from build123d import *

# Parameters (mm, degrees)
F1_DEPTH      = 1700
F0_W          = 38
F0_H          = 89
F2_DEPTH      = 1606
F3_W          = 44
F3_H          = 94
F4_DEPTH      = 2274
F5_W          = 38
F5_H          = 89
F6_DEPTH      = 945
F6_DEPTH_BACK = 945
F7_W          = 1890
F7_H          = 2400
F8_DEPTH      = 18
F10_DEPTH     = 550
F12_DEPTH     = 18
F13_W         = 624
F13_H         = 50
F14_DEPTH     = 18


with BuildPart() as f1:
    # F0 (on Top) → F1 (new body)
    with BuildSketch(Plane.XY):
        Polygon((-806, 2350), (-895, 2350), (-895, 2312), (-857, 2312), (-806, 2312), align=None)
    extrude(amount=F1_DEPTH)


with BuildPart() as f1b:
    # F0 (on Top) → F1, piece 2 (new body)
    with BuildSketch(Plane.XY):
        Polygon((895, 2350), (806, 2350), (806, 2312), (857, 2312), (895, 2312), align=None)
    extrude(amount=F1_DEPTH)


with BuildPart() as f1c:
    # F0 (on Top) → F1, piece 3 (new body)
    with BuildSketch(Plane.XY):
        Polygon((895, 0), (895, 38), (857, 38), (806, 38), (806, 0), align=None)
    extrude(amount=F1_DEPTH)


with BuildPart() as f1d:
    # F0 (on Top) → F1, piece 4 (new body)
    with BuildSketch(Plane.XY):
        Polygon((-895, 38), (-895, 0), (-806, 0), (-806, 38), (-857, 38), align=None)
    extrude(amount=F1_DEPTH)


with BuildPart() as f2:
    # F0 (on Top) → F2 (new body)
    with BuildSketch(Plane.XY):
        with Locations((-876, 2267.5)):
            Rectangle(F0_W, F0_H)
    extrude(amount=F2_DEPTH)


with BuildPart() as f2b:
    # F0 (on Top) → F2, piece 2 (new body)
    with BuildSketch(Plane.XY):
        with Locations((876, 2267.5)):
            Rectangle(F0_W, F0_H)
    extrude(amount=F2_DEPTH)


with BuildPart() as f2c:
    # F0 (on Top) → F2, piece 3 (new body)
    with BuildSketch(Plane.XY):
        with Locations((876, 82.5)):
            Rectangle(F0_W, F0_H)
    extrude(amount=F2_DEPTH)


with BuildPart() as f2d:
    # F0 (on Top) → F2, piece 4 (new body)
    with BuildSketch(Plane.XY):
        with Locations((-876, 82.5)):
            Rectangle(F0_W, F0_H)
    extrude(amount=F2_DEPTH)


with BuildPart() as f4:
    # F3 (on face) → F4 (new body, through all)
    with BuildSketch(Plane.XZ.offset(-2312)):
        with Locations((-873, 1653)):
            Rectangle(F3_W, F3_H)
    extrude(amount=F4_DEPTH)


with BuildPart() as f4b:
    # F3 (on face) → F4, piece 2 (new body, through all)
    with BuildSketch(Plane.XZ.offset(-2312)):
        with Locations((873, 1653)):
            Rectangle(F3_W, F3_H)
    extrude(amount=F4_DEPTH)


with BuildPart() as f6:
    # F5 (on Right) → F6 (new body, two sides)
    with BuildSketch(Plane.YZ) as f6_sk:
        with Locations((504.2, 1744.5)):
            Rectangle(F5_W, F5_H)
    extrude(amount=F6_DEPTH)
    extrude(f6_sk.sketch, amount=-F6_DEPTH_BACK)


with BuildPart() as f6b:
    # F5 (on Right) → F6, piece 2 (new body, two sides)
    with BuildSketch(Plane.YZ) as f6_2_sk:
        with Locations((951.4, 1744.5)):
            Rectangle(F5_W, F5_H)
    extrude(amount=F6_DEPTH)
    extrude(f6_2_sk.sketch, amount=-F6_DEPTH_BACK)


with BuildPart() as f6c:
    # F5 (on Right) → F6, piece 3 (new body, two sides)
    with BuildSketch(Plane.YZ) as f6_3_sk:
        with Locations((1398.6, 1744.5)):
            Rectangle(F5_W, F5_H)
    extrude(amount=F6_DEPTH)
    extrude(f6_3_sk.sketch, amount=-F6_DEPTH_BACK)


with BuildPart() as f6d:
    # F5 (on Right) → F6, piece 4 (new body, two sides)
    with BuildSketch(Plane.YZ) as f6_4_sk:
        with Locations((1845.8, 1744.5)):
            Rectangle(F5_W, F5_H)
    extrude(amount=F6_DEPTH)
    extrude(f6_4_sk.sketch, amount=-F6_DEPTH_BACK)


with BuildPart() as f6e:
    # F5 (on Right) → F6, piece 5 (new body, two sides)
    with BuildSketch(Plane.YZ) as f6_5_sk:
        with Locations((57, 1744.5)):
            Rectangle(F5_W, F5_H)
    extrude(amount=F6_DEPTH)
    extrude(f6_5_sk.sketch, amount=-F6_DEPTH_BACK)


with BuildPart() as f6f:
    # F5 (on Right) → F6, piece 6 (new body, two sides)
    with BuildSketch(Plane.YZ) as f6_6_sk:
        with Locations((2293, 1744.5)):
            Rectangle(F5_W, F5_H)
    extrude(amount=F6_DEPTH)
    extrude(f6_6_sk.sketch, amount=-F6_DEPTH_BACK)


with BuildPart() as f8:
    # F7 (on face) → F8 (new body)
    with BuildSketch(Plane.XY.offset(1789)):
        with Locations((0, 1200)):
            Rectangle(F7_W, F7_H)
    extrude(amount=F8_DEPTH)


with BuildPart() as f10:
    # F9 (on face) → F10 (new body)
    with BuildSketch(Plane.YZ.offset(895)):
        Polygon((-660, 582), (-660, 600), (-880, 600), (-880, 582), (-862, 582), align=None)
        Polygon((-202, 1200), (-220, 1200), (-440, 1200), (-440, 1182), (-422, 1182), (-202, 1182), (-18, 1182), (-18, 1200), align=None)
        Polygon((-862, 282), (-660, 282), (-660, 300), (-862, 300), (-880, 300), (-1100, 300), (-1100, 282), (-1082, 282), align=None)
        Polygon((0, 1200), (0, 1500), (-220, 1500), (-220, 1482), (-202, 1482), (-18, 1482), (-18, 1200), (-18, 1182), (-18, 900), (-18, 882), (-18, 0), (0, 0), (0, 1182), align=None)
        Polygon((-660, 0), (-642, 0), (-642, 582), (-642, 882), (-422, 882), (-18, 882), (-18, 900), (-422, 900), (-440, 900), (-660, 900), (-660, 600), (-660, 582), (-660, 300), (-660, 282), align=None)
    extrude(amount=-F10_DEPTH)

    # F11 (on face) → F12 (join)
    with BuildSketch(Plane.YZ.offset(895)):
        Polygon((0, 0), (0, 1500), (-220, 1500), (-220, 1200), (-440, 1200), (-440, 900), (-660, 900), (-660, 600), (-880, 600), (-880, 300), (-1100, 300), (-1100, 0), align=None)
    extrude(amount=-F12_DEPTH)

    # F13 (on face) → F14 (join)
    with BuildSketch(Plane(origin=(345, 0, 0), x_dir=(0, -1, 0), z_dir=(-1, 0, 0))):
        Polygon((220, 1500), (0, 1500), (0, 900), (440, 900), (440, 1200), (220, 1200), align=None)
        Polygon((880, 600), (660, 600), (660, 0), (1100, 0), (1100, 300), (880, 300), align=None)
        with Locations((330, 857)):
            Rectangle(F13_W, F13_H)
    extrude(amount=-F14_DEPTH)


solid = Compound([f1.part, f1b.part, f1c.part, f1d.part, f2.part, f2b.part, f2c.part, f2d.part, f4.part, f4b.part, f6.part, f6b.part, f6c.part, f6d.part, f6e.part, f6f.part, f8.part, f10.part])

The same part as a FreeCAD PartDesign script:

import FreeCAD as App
import Part
import Sketcher

V = App.Vector


def add_polygon(sketch, points):
    """Adds a closed chain of lines whose ends are joined by coincident constraints."""
    first, n = sketch.GeometryCount, len(points)
    for a, b in zip(points, points[1:] + points[:1]):
        sketch.addGeometry(Part.LineSegment(App.Vector(*a, 0), App.Vector(*b, 0)), False)
    for i in range(n):
        sketch.addConstraint(Sketcher.Constraint("Coincident", first + i, 2, first + (i + 1) % n, 1))

doc = App.newDocument("Part")
params = doc.addObject("Spreadsheet::Sheet", "Params")
for row, (alias, value) in enumerate([
    ("sketch1_width", "89 mm"),
    ("sketch1_height", "38 mm"),
    ("pad1_length", "1700 mm"),
    ("sketch2_width", "89 mm"),
    ("sketch2_height", "38 mm"),
    ("pad2_length", "1700 mm"),
    ("sketch3_width", "89 mm"),
    ("sketch3_height", "38 mm"),
    ("pad3_length", "1700 mm"),
    ("sketch4_width", "89 mm"),
    ("sketch4_height", "38 mm"),
    ("pad4_length", "1700 mm"),
    ("sketch5_width", "38 mm"),
    ("sketch5_height", "89 mm"),
    ("pad5_length", "1606 mm"),
    ("sketch6_width", "38 mm"),
    ("sketch6_height", "89 mm"),
    ("pad6_length", "1606 mm"),
    ("sketch7_width", "38 mm"),
    ("sketch7_height", "89 mm"),
    ("pad7_length", "1606 mm"),
    ("sketch8_width", "38 mm"),
    ("sketch8_height", "89 mm"),
    ("pad8_length", "1606 mm"),
    ("sketch9_width", "44 mm"),
    ("sketch9_height", "94 mm"),
    ("pad9_length", "2274 mm"),
    ("sketch10_width", "44 mm"),
    ("sketch10_height", "94 mm"),
    ("pad10_length", "2274 mm"),
    ("sketch11_width", "38 mm"),
    ("sketch11_height", "89 mm"),
    ("pad11_length", "945 mm"),
    ("pad11_length2", "945 mm"),
    ("sketch12_width", "38 mm"),
    ("sketch12_height", "89 mm"),
    ("pad12_length", "945 mm"),
    ("pad12_length2", "945 mm"),
    ("sketch13_width", "38 mm"),
    ("sketch13_height", "89 mm"),
    ("pad13_length", "945 mm"),
    ("pad13_length2", "945 mm"),
    ("sketch14_width", "38 mm"),
    ("sketch14_height", "89 mm"),
    ("pad14_length", "945 mm"),
    ("pad14_length2", "945 mm"),
    ("sketch15_width", "38 mm"),
    ("sketch15_height", "89 mm"),
    ("pad15_length", "945 mm"),
    ("pad15_length2", "945 mm"),
    ("sketch16_width", "38 mm"),
    ("sketch16_height", "89 mm"),
    ("pad16_length", "945 mm"),
    ("pad16_length2", "945 mm"),
    ("sketch17_width", "1890 mm"),
    ("sketch17_height", "2400 mm"),
    ("pad17_length", "18 mm"),
    ("sketch18_width", "220 mm"),
    ("sketch18_width2", "440 mm"),
    ("sketch18_width3", "18 mm"),
    ("sketch18_width4", "624 mm"),
    ("sketch18_width5", "422 mm"),
    ("pad18_length", "550 mm"),
    ("sketch19_width", "220 mm"),
    ("sketch19_height", "1500 mm"),
    ("pad19_length", "18 mm"),
    ("sketch20_width", "220 mm"),
    ("sketch20_width2", "624 mm"),
    ("sketch20_height", "600 mm"),
    ("sketch20_height2", "50 mm"),
    ("pad20_length", "18 mm"),
], start=1):
    params.set(f"A{row}", alias)
    params.set(f"B{row}", "=" + value)
    params.setAlias(f"B{row}", alias)

body = doc.addObject("PartDesign::Body", "Body")

sketch1 = body.newObject("Sketcher::SketchObject", "Sketch")
sketch1.AttachmentSupport = (doc.getObject("XY_Plane"), [""])
sketch1.MapMode = "FlatFace"
add_polygon(sketch1, [(-806, 2350), (-895, 2350), (-895, 2312), (-806, 2312)])
sketch1.addConstraint(Sketcher.Constraint("Horizontal", 0))
sketch1.addConstraint(Sketcher.Constraint("Vertical", 1))
sketch1.addConstraint(Sketcher.Constraint("Horizontal", 2))
sketch1.addConstraint(Sketcher.Constraint("Vertical", 3))
sketch1.addConstraint(Sketcher.Constraint("DistanceX", 0, 2, 0, 1, 89.0))
sketch1.addConstraint(Sketcher.Constraint("DistanceY", 1, 2, 1, 1, 38.0))
sketch1.addConstraint(Sketcher.Constraint("DistanceX", 0, 2, -1, 1, 895.0))
sketch1.addConstraint(Sketcher.Constraint("DistanceY", -1, 1, 0, 2, 2350.0))
sketch1.setExpression("Constraints[8]", "Params.sketch1_width")
sketch1.setExpression("Constraints[9]", "Params.sketch1_height")
pad1 = body.newObject("PartDesign::Pad", "Pad")
pad1.Profile = sketch1
pad1.setExpression("Length", "Params.pad1_length")
body2 = doc.addObject("PartDesign::Body", "Body001")

sketch2 = body2.newObject("Sketcher::SketchObject", "Sketch001")
sketch2.AttachmentSupport = (doc.getObject("XY_Plane001"), [""])
sketch2.MapMode = "FlatFace"
add_polygon(sketch2, [(895, 2350), (806, 2350), (806, 2312), (895, 2312)])
sketch2.addConstraint(Sketcher.Constraint("Horizontal", 0))
sketch2.addConstraint(Sketcher.Constraint("Vertical", 1))
sketch2.addConstraint(Sketcher.Constraint("Horizontal", 2))
sketch2.addConstraint(Sketcher.Constraint("Vertical", 3))
sketch2.addConstraint(Sketcher.Constraint("DistanceX", 0, 2, 0, 1, 89.0))
sketch2.addConstraint(Sketcher.Constraint("DistanceY", 1, 2, 1, 1, 38.0))
sketch2.addConstraint(Sketcher.Constraint("DistanceX", -1, 1, 0, 2, 806.0))
sketch2.addConstraint(Sketcher.Constraint("DistanceY", -1, 1, 0, 2, 2350.0))
sketch2.setExpression("Constraints[8]", "Params.sketch2_width")
sketch2.setExpression("Constraints[9]", "Params.sketch2_height")
pad2 = body2.newObject("PartDesign::Pad", "Pad001")
pad2.Profile = sketch2
pad2.setExpression("Length", "Params.pad2_length")
body3 = doc.addObject("PartDesign::Body", "Body002")

sketch3 = body3.newObject("Sketcher::SketchObject", "Sketch002")
sketch3.AttachmentSupport = (doc.getObject("XY_Plane002"), [""])
sketch3.MapMode = "FlatFace"
add_polygon(sketch3, [(895, 0), (895, 38), (806, 38), (806, 0)])
sketch3.addConstraint(Sketcher.Constraint("Vertical", 0))
sketch3.addConstraint(Sketcher.Constraint("Horizontal", 1))
sketch3.addConstraint(Sketcher.Constraint("Vertical", 2))
sketch3.addConstraint(Sketcher.Constraint("Horizontal", 3))
sketch3.addConstraint(Sketcher.Constraint("PointOnObject", 2, 2, -1))
sketch3.addConstraint(Sketcher.Constraint("DistanceX", 1, 2, 1, 1, 89.0))
sketch3.addConstraint(Sketcher.Constraint("DistanceY", 0, 1, 0, 2, 38.0))
sketch3.addConstraint(Sketcher.Constraint("DistanceX", -1, 1, 0, 2, 895.0))
sketch3.setExpression("Constraints[9]", "Params.sketch3_width")
sketch3.setExpression("Constraints[10]", "Params.sketch3_height")
pad3 = body3.newObject("PartDesign::Pad", "Pad002")
pad3.Profile = sketch3
pad3.setExpression("Length", "Params.pad3_length")
body4 = doc.addObject("PartDesign::Body", "Body003")

sketch4 = body4.newObject("Sketcher::SketchObject", "Sketch003")
sketch4.AttachmentSupport = (doc.getObject("XY_Plane003"), [""])
sketch4.MapMode = "FlatFace"
add_polygon(sketch4, [(-895, 38), (-895, 0), (-806, 0), (-806, 38)])
sketch4.addConstraint(Sketcher.Constraint("Vertical", 0))
sketch4.addConstraint(Sketcher.Constraint("Horizontal", 1))
sketch4.addConstraint(Sketcher.Constraint("Vertical", 2))
sketch4.addConstraint(Sketcher.Constraint("Horizontal", 3))
sketch4.addConstraint(Sketcher.Constraint("PointOnObject", 0, 2, -1))
sketch4.addConstraint(Sketcher.Constraint("DistanceX", 1, 1, 1, 2, 89.0))
sketch4.addConstraint(Sketcher.Constraint("DistanceY", 0, 2, 0, 1, 38.0))
sketch4.addConstraint(Sketcher.Constraint("DistanceX", 0, 2, -1, 1, 895.0))
sketch4.setExpression("Constraints[9]", "Params.sketch4_width")
sketch4.setExpression("Constraints[10]", "Params.sketch4_height")
pad4 = body4.newObject("PartDesign::Pad", "Pad003")
pad4.Profile = sketch4
pad4.setExpression("Length", "Params.pad4_length")
body5 = doc.addObject("PartDesign::Body", "Body004")

sketch5 = body5.newObject("Sketcher::SketchObject", "Sketch004")
sketch5.AttachmentSupport = (doc.getObject("XY_Plane004"), [""])
sketch5.MapMode = "FlatFace"
add_polygon(sketch5, [(-895, 2312), (-895, 2223), (-857, 2223), (-857, 2312)])
sketch5.addConstraint(Sketcher.Constraint("Vertical", 0))
sketch5.addConstraint(Sketcher.Constraint("Horizontal", 1))
sketch5.addConstraint(Sketcher.Constraint("Vertical", 2))
sketch5.addConstraint(Sketcher.Constraint("Horizontal", 3))
sketch5.addConstraint(Sketcher.Constraint("DistanceX", 1, 1, 1, 2, 38.0))
sketch5.addConstraint(Sketcher.Constraint("DistanceY", 0, 2, 0, 1, 89.0))
sketch5.addConstraint(Sketcher.Constraint("DistanceX", 0, 2, -1, 1, 895.0))
sketch5.addConstraint(Sketcher.Constraint("DistanceY", -1, 1, 0, 2, 2223.0))
sketch5.setExpression("Constraints[8]", "Params.sketch5_width")
sketch5.setExpression("Constraints[9]", "Params.sketch5_height")
pad5 = body5.newObject("PartDesign::Pad", "Pad004")
pad5.Profile = sketch5
pad5.setExpression("Length", "Params.pad5_length")
body6 = doc.addObject("PartDesign::Body", "Body005")

sketch6 = body6.newObject("Sketcher::SketchObject", "Sketch005")
sketch6.AttachmentSupport = (doc.getObject("XY_Plane005"), [""])
sketch6.MapMode = "FlatFace"
add_polygon(sketch6, [(857, 2312), (857, 2223), (895, 2223), (895, 2312)])
sketch6.addConstraint(Sketcher.Constraint("Vertical", 0))
sketch6.addConstraint(Sketcher.Constraint("Horizontal", 1))
sketch6.addConstraint(Sketcher.Constraint("Vertical", 2))
sketch6.addConstraint(Sketcher.Constraint("Horizontal", 3))
sketch6.addConstraint(Sketcher.Constraint("DistanceX", 1, 1, 1, 2, 38.0))
sketch6.addConstraint(Sketcher.Constraint("DistanceY", 0, 2, 0, 1, 89.0))
sketch6.addConstraint(Sketcher.Constraint("DistanceX", -1, 1, 0, 2, 857.0))
sketch6.addConstraint(Sketcher.Constraint("DistanceY", -1, 1, 0, 2, 2223.0))
sketch6.setExpression("Constraints[8]", "Params.sketch6_width")
sketch6.setExpression("Constraints[9]", "Params.sketch6_height")
pad6 = body6.newObject("PartDesign::Pad", "Pad005")
pad6.Profile = sketch6
pad6.setExpression("Length", "Params.pad6_length")
body7 = doc.addObject("PartDesign::Body", "Body006")

sketch7 = body7.newObject("Sketcher::SketchObject", "Sketch006")
sketch7.AttachmentSupport = (doc.getObject("XY_Plane006"), [""])
sketch7.MapMode = "FlatFace"
add_polygon(sketch7, [(857, 127), (857, 38), (895, 38), (895, 127)])
sketch7.addConstraint(Sketcher.Constraint("Vertical", 0))
sketch7.addConstraint(Sketcher.Constraint("Horizontal", 1))
sketch7.addConstraint(Sketcher.Constraint("Vertical", 2))
sketch7.addConstraint(Sketcher.Constraint("Horizontal", 3))
sketch7.addConstraint(Sketcher.Constraint("DistanceX", 1, 1, 1, 2, 38.0))
sketch7.addConstraint(Sketcher.Constraint("DistanceY", 0, 2, 0, 1, 89.0))
sketch7.addConstraint(Sketcher.Constraint("DistanceX", -1, 1, 0, 2, 857.0))
sketch7.addConstraint(Sketcher.Constraint("DistanceY", -1, 1, 0, 2, 38.0))
sketch7.setExpression("Constraints[8]", "Params.sketch7_width")
sketch7.setExpression("Constraints[9]", "Params.sketch7_height")
pad7 = body7.newObject("PartDesign::Pad", "Pad006")
pad7.Profile = sketch7
pad7.setExpression("Length", "Params.pad7_length")
body8 = doc.addObject("PartDesign::Body", "Body007")

sketch8 = body8.newObject("Sketcher::SketchObject", "Sketch007")
sketch8.AttachmentSupport = (doc.getObject("XY_Plane007"), [""])
sketch8.MapMode = "FlatFace"
add_polygon(sketch8, [(-895, 127), (-895, 38), (-857, 38), (-857, 127)])
sketch8.addConstraint(Sketcher.Constraint("Vertical", 0))
sketch8.addConstraint(Sketcher.Constraint("Horizontal", 1))
sketch8.addConstraint(Sketcher.Constraint("Vertical", 2))
sketch8.addConstraint(Sketcher.Constraint("Horizontal", 3))
sketch8.addConstraint(Sketcher.Constraint("DistanceX", 1, 1, 1, 2, 38.0))
sketch8.addConstraint(Sketcher.Constraint("DistanceY", 0, 2, 0, 1, 89.0))
sketch8.addConstraint(Sketcher.Constraint("DistanceX", 0, 2, -1, 1, 895.0))
sketch8.addConstraint(Sketcher.Constraint("DistanceY", -1, 1, 0, 2, 38.0))
sketch8.setExpression("Constraints[8]", "Params.sketch8_width")
sketch8.setExpression("Constraints[9]", "Params.sketch8_height")
pad8 = body8.newObject("PartDesign::Pad", "Pad007")
pad8.Profile = sketch8
pad8.setExpression("Length", "Params.pad8_length")
body9 = doc.addObject("PartDesign::Body", "Body008")

sketch9 = body9.newObject("Sketcher::SketchObject", "Sketch008")
sketch9.AttachmentSupport = (doc.getObject("XZ_Plane008"), [""])
sketch9.MapMode = "FlatFace"
sketch9.AttachmentOffset = App.Placement(V(0, 0, -2312), App.Rotation())
add_polygon(sketch9, [(-895, 1700), (-895, 1606), (-851, 1606), (-851, 1700)])
sketch9.addConstraint(Sketcher.Constraint("Vertical", 0))
sketch9.addConstraint(Sketcher.Constraint("Horizontal", 1))
sketch9.addConstraint(Sketcher.Constraint("Vertical", 2))
sketch9.addConstraint(Sketcher.Constraint("Horizontal", 3))
sketch9.addConstraint(Sketcher.Constraint("DistanceX", 1, 1, 1, 2, 44.0))
sketch9.addConstraint(Sketcher.Constraint("DistanceY", 0, 2, 0, 1, 94.0))
sketch9.addConstraint(Sketcher.Constraint("DistanceX", 0, 2, -1, 1, 895.0))
sketch9.addConstraint(Sketcher.Constraint("DistanceY", -1, 1, 0, 2, 1606.0))
sketch9.setExpression("Constraints[8]", "Params.sketch9_width")
sketch9.setExpression("Constraints[9]", "Params.sketch9_height")
pad9 = body9.newObject("PartDesign::Pad", "Pad008")
pad9.Profile = sketch9
pad9.setExpression("Length", "Params.pad9_length")
body10 = doc.addObject("PartDesign::Body", "Body009")

sketch10 = body10.newObject("Sketcher::SketchObject", "Sketch009")
sketch10.AttachmentSupport = (doc.getObject("XZ_Plane009"), [""])
sketch10.MapMode = "FlatFace"
sketch10.AttachmentOffset = App.Placement(V(0, 0, -2312), App.Rotation())
add_polygon(sketch10, [(851, 1700), (851, 1606), (895, 1606), (895, 1700)])
sketch10.addConstraint(Sketcher.Constraint("Vertical", 0))
sketch10.addConstraint(Sketcher.Constraint("Horizontal", 1))
sketch10.addConstraint(Sketcher.Constraint("Vertical", 2))
sketch10.addConstraint(Sketcher.Constraint("Horizontal", 3))
sketch10.addConstraint(Sketcher.Constraint("DistanceX", 1, 1, 1, 2, 44.0))
sketch10.addConstraint(Sketcher.Constraint("DistanceY", 0, 2, 0, 1, 94.0))
sketch10.addConstraint(Sketcher.Constraint("DistanceX", -1, 1, 0, 2, 851.0))
sketch10.addConstraint(Sketcher.Constraint("DistanceY", -1, 1, 0, 2, 1606.0))
sketch10.setExpression("Constraints[8]", "Params.sketch10_width")
sketch10.setExpression("Constraints[9]", "Params.sketch10_height")
pad10 = body10.newObject("PartDesign::Pad", "Pad009")
pad10.Profile = sketch10
pad10.setExpression("Length", "Params.pad10_length")
body11 = doc.addObject("PartDesign::Body", "Body010")

sketch11 = body11.newObject("Sketcher::SketchObject", "Sketch010")
sketch11.AttachmentSupport = (doc.getObject("YZ_Plane010"), [""])
sketch11.MapMode = "FlatFace"
add_polygon(sketch11, [(485.2, 1789), (485.2, 1700), (523.2, 1700), (523.2, 1789)])
sketch11.addConstraint(Sketcher.Constraint("Vertical", 0))
sketch11.addConstraint(Sketcher.Constraint("Horizontal", 1))
sketch11.addConstraint(Sketcher.Constraint("Vertical", 2))
sketch11.addConstraint(Sketcher.Constraint("Horizontal", 3))
sketch11.addConstraint(Sketcher.Constraint("DistanceX", 1, 1, 1, 2, 38.0))
sketch11.addConstraint(Sketcher.Constraint("DistanceY", 0, 2, 0, 1, 89.0))
sketch11.addConstraint(Sketcher.Constraint("DistanceY", -1, 1, 0, 2, 1700.0))
sketch11.addConstraint(Sketcher.Constraint("DistanceX", -1, 1, 0, 2, 485.2))
sketch11.setExpression("Constraints[8]", "Params.sketch11_width")
sketch11.setExpression("Constraints[9]", "Params.sketch11_height")
pad11 = body11.newObject("PartDesign::Pad", "Pad010")
pad11.Profile = sketch11
pad11.Type = "TwoLengths"
pad11.setExpression("Length", "Params.pad11_length")
pad11.setExpression("Length2", "Params.pad11_length2")
body12 = doc.addObject("PartDesign::Body", "Body011")

sketch12 = body12.newObject("Sketcher::SketchObject", "Sketch011")
sketch12.AttachmentSupport = (doc.getObject("YZ_Plane011"), [""])
sketch12.MapMode = "FlatFace"
add_polygon(sketch12, [(932.4, 1789), (932.4, 1700), (970.4, 1700), (970.4, 1789)])
sketch12.addConstraint(Sketcher.Constraint("Vertical", 0))
sketch12.addConstraint(Sketcher.Constraint("Horizontal", 1))
sketch12.addConstraint(Sketcher.Constraint("Vertical", 2))
sketch12.addConstraint(Sketcher.Constraint("Horizontal", 3))
sketch12.addConstraint(Sketcher.Constraint("DistanceX", 1, 1, 1, 2, 38.0))
sketch12.addConstraint(Sketcher.Constraint("DistanceY", 0, 2, 0, 1, 89.0))
sketch12.addConstraint(Sketcher.Constraint("DistanceY", -1, 1, 0, 2, 1700.0))
sketch12.addConstraint(Sketcher.Constraint("DistanceX", -1, 1, 0, 2, 932.4))
sketch12.setExpression("Constraints[8]", "Params.sketch12_width")
sketch12.setExpression("Constraints[9]", "Params.sketch12_height")
pad12 = body12.newObject("PartDesign::Pad", "Pad011")
pad12.Profile = sketch12
pad12.Type = "TwoLengths"
pad12.setExpression("Length", "Params.pad12_length")
pad12.setExpression("Length2", "Params.pad12_length2")
body13 = doc.addObject("PartDesign::Body", "Body012")

sketch13 = body13.newObject("Sketcher::SketchObject", "Sketch012")
sketch13.AttachmentSupport = (doc.getObject("YZ_Plane012"), [""])
sketch13.MapMode = "FlatFace"
add_polygon(sketch13, [(1379.6, 1789), (1379.6, 1700), (1417.6, 1700), (1417.6, 1789)])
sketch13.addConstraint(Sketcher.Constraint("Vertical", 0))
sketch13.addConstraint(Sketcher.Constraint("Horizontal", 1))
sketch13.addConstraint(Sketcher.Constraint("Vertical", 2))
sketch13.addConstraint(Sketcher.Constraint("Horizontal", 3))
sketch13.addConstraint(Sketcher.Constraint("DistanceX", 1, 1, 1, 2, 38.0))
sketch13.addConstraint(Sketcher.Constraint("DistanceY", 0, 2, 0, 1, 89.0))
sketch13.addConstraint(Sketcher.Constraint("DistanceY", -1, 1, 0, 2, 1700.0))
sketch13.addConstraint(Sketcher.Constraint("DistanceX", -1, 1, 0, 2, 1379.6))
sketch13.setExpression("Constraints[8]", "Params.sketch13_width")
sketch13.setExpression("Constraints[9]", "Params.sketch13_height")
pad13 = body13.newObject("PartDesign::Pad", "Pad012")
pad13.Profile = sketch13
pad13.Type = "TwoLengths"
pad13.setExpression("Length", "Params.pad13_length")
pad13.setExpression("Length2", "Params.pad13_length2")
body14 = doc.addObject("PartDesign::Body", "Body013")

sketch14 = body14.newObject("Sketcher::SketchObject", "Sketch013")
sketch14.AttachmentSupport = (doc.getObject("YZ_Plane013"), [""])
sketch14.MapMode = "FlatFace"
add_polygon(sketch14, [(1826.8, 1789), (1826.8, 1700), (1864.8, 1700), (1864.8, 1789)])
sketch14.addConstraint(Sketcher.Constraint("Vertical", 0))
sketch14.addConstraint(Sketcher.Constraint("Horizontal", 1))
sketch14.addConstraint(Sketcher.Constraint("Vertical", 2))
sketch14.addConstraint(Sketcher.Constraint("Horizontal", 3))
sketch14.addConstraint(Sketcher.Constraint("DistanceX", 1, 1, 1, 2, 38.0))
sketch14.addConstraint(Sketcher.Constraint("DistanceY", 0, 2, 0, 1, 89.0))
sketch14.addConstraint(Sketcher.Constraint("DistanceY", -1, 1, 0, 2, 1700.0))
sketch14.addConstraint(Sketcher.Constraint("DistanceX", -1, 1, 0, 2, 1826.8))
sketch14.setExpression("Constraints[8]", "Params.sketch14_width")
sketch14.setExpression("Constraints[9]", "Params.sketch14_height")
pad14 = body14.newObject("PartDesign::Pad", "Pad013")
pad14.Profile = sketch14
pad14.Type = "TwoLengths"
pad14.setExpression("Length", "Params.pad14_length")
pad14.setExpression("Length2", "Params.pad14_length2")
body15 = doc.addObject("PartDesign::Body", "Body014")

sketch15 = body15.newObject("Sketcher::SketchObject", "Sketch014")
sketch15.AttachmentSupport = (doc.getObject("YZ_Plane014"), [""])
sketch15.MapMode = "FlatFace"
add_polygon(sketch15, [(38, 1789), (38, 1700), (76, 1700), (76, 1789)])
sketch15.addConstraint(Sketcher.Constraint("Vertical", 0))
sketch15.addConstraint(Sketcher.Constraint("Horizontal", 1))
sketch15.addConstraint(Sketcher.Constraint("Vertical", 2))
sketch15.addConstraint(Sketcher.Constraint("Horizontal", 3))
sketch15.addConstraint(Sketcher.Constraint("DistanceX", 1, 1, 1, 2, 38.0))
sketch15.addConstraint(Sketcher.Constraint("DistanceY", 0, 2, 0, 1, 89.0))
sketch15.addConstraint(Sketcher.Constraint("DistanceX", -1, 1, 0, 2, 38.0))
sketch15.addConstraint(Sketcher.Constraint("DistanceY", -1, 1, 0, 2, 1700.0))
sketch15.setExpression("Constraints[8]", "Params.sketch15_width")
sketch15.setExpression("Constraints[9]", "Params.sketch15_height")
pad15 = body15.newObject("PartDesign::Pad", "Pad014")
pad15.Profile = sketch15
pad15.Type = "TwoLengths"
pad15.setExpression("Length", "Params.pad15_length")
pad15.setExpression("Length2", "Params.pad15_length2")
body16 = doc.addObject("PartDesign::Body", "Body015")

sketch16 = body16.newObject("Sketcher::SketchObject", "Sketch015")
sketch16.AttachmentSupport = (doc.getObject("YZ_Plane015"), [""])
sketch16.MapMode = "FlatFace"
add_polygon(sketch16, [(2274, 1789), (2274, 1700), (2312, 1700), (2312, 1789)])
sketch16.addConstraint(Sketcher.Constraint("Vertical", 0))
sketch16.addConstraint(Sketcher.Constraint("Horizontal", 1))
sketch16.addConstraint(Sketcher.Constraint("Vertical", 2))
sketch16.addConstraint(Sketcher.Constraint("Horizontal", 3))
sketch16.addConstraint(Sketcher.Constraint("DistanceX", 1, 1, 1, 2, 38.0))
sketch16.addConstraint(Sketcher.Constraint("DistanceY", 0, 2, 0, 1, 89.0))
sketch16.addConstraint(Sketcher.Constraint("DistanceX", -1, 1, 0, 2, 2274.0))
sketch16.addConstraint(Sketcher.Constraint("DistanceY", -1, 1, 0, 2, 1700.0))
sketch16.setExpression("Constraints[8]", "Params.sketch16_width")
sketch16.setExpression("Constraints[9]", "Params.sketch16_height")
pad16 = body16.newObject("PartDesign::Pad", "Pad015")
pad16.Profile = sketch16
pad16.Type = "TwoLengths"
pad16.setExpression("Length", "Params.pad16_length")
pad16.setExpression("Length2", "Params.pad16_length2")
body17 = doc.addObject("PartDesign::Body", "Body016")

sketch17 = body17.newObject("Sketcher::SketchObject", "Sketch016")
sketch17.AttachmentSupport = (doc.getObject("XY_Plane016"), [""])
sketch17.MapMode = "FlatFace"
sketch17.AttachmentOffset = App.Placement(V(0, 0, 1789), App.Rotation())
add_polygon(sketch17, [(-945, 2400), (-945, 0), (945, 0), (945, 2400)])
sketch17.addConstraint(Sketcher.Constraint("Vertical", 0))
sketch17.addConstraint(Sketcher.Constraint("Horizontal", 1))
sketch17.addConstraint(Sketcher.Constraint("Vertical", 2))
sketch17.addConstraint(Sketcher.Constraint("Horizontal", 3))
sketch17.addConstraint(Sketcher.Constraint("Symmetric", 0, 2, 1, 2, -1, 1))
sketch17.addConstraint(Sketcher.Constraint("DistanceX", 1, 1, 1, 2, 1890.0))
sketch17.addConstraint(Sketcher.Constraint("DistanceY", 0, 2, 0, 1, 2400.0))
sketch17.setExpression("Constraints[9]", "Params.sketch17_width")
sketch17.setExpression("Constraints[10]", "Params.sketch17_height")
pad17 = body17.newObject("PartDesign::Pad", "Pad016")
pad17.Profile = sketch17
pad17.setExpression("Length", "Params.pad17_length")
body18 = doc.addObject("PartDesign::Body", "Body017")

sketch18 = body18.newObject("Sketcher::SketchObject", "Sketch017")
sketch18.AttachmentSupport = (doc.getObject("YZ_Plane017"), [""])
sketch18.MapMode = "FlatFace"
sketch18.AttachmentOffset = App.Placement(V(0, 0, 895), App.Rotation())
add_polygon(sketch18, [(-660, 600), (-880, 600), (-880, 582), (-660, 582), (-660, 300), (-1100, 300), (-1100, 282), (-660, 282), (-660, 0), (-642, 0), (-642, 882), (-18, 882), (-18, 0), (0, 0), (0, 1500), (-220, 1500), (-220, 1482), (-18, 1482), (-18, 1200), (-440, 1200), (-440, 1182), (-18, 1182), (-18, 900), (-660, 900)])
sketch18.addConstraint(Sketcher.Constraint("Horizontal", 0))
sketch18.addConstraint(Sketcher.Constraint("Vertical", 1))
sketch18.addConstraint(Sketcher.Constraint("Horizontal", 2))
sketch18.addConstraint(Sketcher.Constraint("Vertical", 3))
sketch18.addConstraint(Sketcher.Constraint("Horizontal", 4))
sketch18.addConstraint(Sketcher.Constraint("Vertical", 5))
sketch18.addConstraint(Sketcher.Constraint("Horizontal", 6))
sketch18.addConstraint(Sketcher.Constraint("Vertical", 7))
sketch18.addConstraint(Sketcher.Constraint("Horizontal", 8))
sketch18.addConstraint(Sketcher.Constraint("Vertical", 9))
sketch18.addConstraint(Sketcher.Constraint("Horizontal", 10))
sketch18.addConstraint(Sketcher.Constraint("Vertical", 11))
sketch18.addConstraint(Sketcher.Constraint("Horizontal", 12))
sketch18.addConstraint(Sketcher.Constraint("Vertical", 13))
sketch18.addConstraint(Sketcher.Constraint("Horizontal", 14))
sketch18.addConstraint(Sketcher.Constraint("Vertical", 15))
sketch18.addConstraint(Sketcher.Constraint("Horizontal", 16))
sketch18.addConstraint(Sketcher.Constraint("Vertical", 17))
sketch18.addConstraint(Sketcher.Constraint("Horizontal", 18))
sketch18.addConstraint(Sketcher.Constraint("Vertical", 19))
sketch18.addConstraint(Sketcher.Constraint("Horizontal", 20))
sketch18.addConstraint(Sketcher.Constraint("Vertical", 21))
sketch18.addConstraint(Sketcher.Constraint("Horizontal", 22))
sketch18.addConstraint(Sketcher.Constraint("Vertical", 23))
sketch18.addConstraint(Sketcher.Constraint("Coincident", 12, 2, -1, 1))
sketch18.addConstraint(Sketcher.Constraint("PointOnObject", 7, 2, -1))
sketch18.addConstraint(Sketcher.Constraint("Vertical", 3, 2, 6, 2))
sketch18.addConstraint(Sketcher.Constraint("Vertical", 11, 2, 16, 2))
sketch18.addConstraint(Sketcher.Constraint("Vertical", 17, 2, 20, 2))
sketch18.addConstraint(Sketcher.Constraint("Vertical", 7, 2, 22, 2))
sketch18.addConstraint(Sketcher.Constraint("Equal", 8, 12))
sketch18.addConstraint(Sketcher.Constraint("Equal", 2, 14))
sketch18.addConstraint(Sketcher.Constraint("Equal", 12, 1))
sketch18.addConstraint(Sketcher.Constraint("Equal", 1, 5))
sketch18.addConstraint(Sketcher.Constraint("Equal", 3, 7))
sketch18.addConstraint(Sketcher.Constraint("Equal", 5, 15))
sketch18.addConstraint(Sketcher.Constraint("Equal", 7, 17))
sketch18.addConstraint(Sketcher.Constraint("Equal", 15, 19))
sketch18.addConstraint(Sketcher.Constraint("Equal", 17, 21))
sketch18.addConstraint(Sketcher.Constraint("DistanceX", 0, 2, 0, 1, 220.0))
sketch18.addConstraint(Sketcher.Constraint("DistanceX", 4, 2, 4, 1, 440.0))
sketch18.addConstraint(Sketcher.Constraint("DistanceX", 8, 1, 8, 2, 18.0))
sketch18.addConstraint(Sketcher.Constraint("DistanceX", 10, 1, 10, 2, 624.0))
sketch18.addConstraint(Sketcher.Constraint("DistanceX", 18, 2, 18, 1, 422.0))
sketch18.addConstraint(Sketcher.Constraint("DistanceY", 3, 2, 3, 1, 282.0))
sketch18.addConstraint(Sketcher.Constraint("DistanceY", 9, 1, 9, 2, 882.0))
sketch18.addConstraint(Sketcher.Constraint("DistanceY", 13, 1, 13, 2, 1500.0))
sketch18.setExpression("Constraints[63]", "Params.sketch18_width")
sketch18.setExpression("Constraints[64]", "Params.sketch18_width2")
sketch18.setExpression("Constraints[65]", "Params.sketch18_width3")
sketch18.setExpression("Constraints[66]", "Params.sketch18_width4")
sketch18.setExpression("Constraints[67]", "Params.sketch18_width5")
pad18 = body18.newObject("PartDesign::Pad", "Pad017")
pad18.Profile = sketch18
pad18.setExpression("Length", "Params.pad18_length")
pad18.Reversed = True

sketch19 = body18.newObject("Sketcher::SketchObject", "Sketch018")
sketch19.AttachmentSupport = (doc.getObject("YZ_Plane017"), [""])
sketch19.MapMode = "FlatFace"
sketch19.AttachmentOffset = App.Placement(V(0, 0, 895), App.Rotation())
add_polygon(sketch19, [(0, 0), (0, 1500), (-220, 1500), (-220, 1200), (-440, 1200), (-440, 900), (-660, 900), (-660, 600), (-880, 600), (-880, 300), (-1100, 300), (-1100, 0)])
sketch19.addConstraint(Sketcher.Constraint("Vertical", 0))
sketch19.addConstraint(Sketcher.Constraint("Horizontal", 1))
sketch19.addConstraint(Sketcher.Constraint("Vertical", 2))
sketch19.addConstraint(Sketcher.Constraint("Horizontal", 3))
sketch19.addConstraint(Sketcher.Constraint("Vertical", 4))
sketch19.addConstraint(Sketcher.Constraint("Horizontal", 5))
sketch19.addConstraint(Sketcher.Constraint("Vertical", 6))
sketch19.addConstraint(Sketcher.Constraint("Horizontal", 7))
sketch19.addConstraint(Sketcher.Constraint("Vertical", 8))
sketch19.addConstraint(Sketcher.Constraint("Horizontal", 9))
sketch19.addConstraint(Sketcher.Constraint("Vertical", 10))
sketch19.addConstraint(Sketcher.Constraint("Horizontal", 11))
sketch19.addConstraint(Sketcher.Constraint("Coincident", 11, 2, -1, 1))
sketch19.addConstraint(Sketcher.Constraint("Equal", 1, 3))
sketch19.addConstraint(Sketcher.Constraint("Equal", 3, 5))
sketch19.addConstraint(Sketcher.Constraint("Equal", 5, 7))
sketch19.addConstraint(Sketcher.Constraint("Equal", 7, 9))
sketch19.addConstraint(Sketcher.Constraint("Equal", 2, 4))
sketch19.addConstraint(Sketcher.Constraint("Equal", 4, 6))
sketch19.addConstraint(Sketcher.Constraint("Equal", 6, 8))
sketch19.addConstraint(Sketcher.Constraint("Equal", 8, 10))
sketch19.addConstraint(Sketcher.Constraint("DistanceX", 1, 2, 1, 1, 220.0))
sketch19.addConstraint(Sketcher.Constraint("DistanceY", 0, 1, 0, 2, 1500.0))
sketch19.setExpression("Constraints[33]", "Params.sketch19_width")
sketch19.setExpression("Constraints[34]", "Params.sketch19_height")
pad19 = body18.newObject("PartDesign::Pad", "Pad018")
pad19.Profile = sketch19
pad19.setExpression("Length", "Params.pad19_length")
pad19.Reversed = True

sketch20 = body18.newObject("Sketcher::SketchObject", "Sketch019")
sketch20.AttachmentSupport = (doc.getObject("YZ_Plane017"), [""])
sketch20.MapMode = "FlatFace"
sketch20.AttachmentOffset = App.Placement(V(0, 0, 345), App.Rotation())
add_polygon(sketch20, [(-220, 1500), (0, 1500), (0, 900), (-440, 900), (-440, 1200), (-220, 1200)])
add_polygon(sketch20, [(-880, 600), (-660, 600), (-660, 0), (-1100, 0), (-1100, 300), (-880, 300)])
add_polygon(sketch20, [(-18, 882), (-18, 832), (-642, 832), (-642, 882)])
sketch20.addConstraint(Sketcher.Constraint("Horizontal", 0))
sketch20.addConstraint(Sketcher.Constraint("Vertical", 1))
sketch20.addConstraint(Sketcher.Constraint("Horizontal", 2))
sketch20.addConstraint(Sketcher.Constraint("Vertical", 3))
sketch20.addConstraint(Sketcher.Constraint("Horizontal", 4))
sketch20.addConstraint(Sketcher.Constraint("Vertical", 5))
sketch20.addConstraint(Sketcher.Constraint("Horizontal", 6))
sketch20.addConstraint(Sketcher.Constraint("Vertical", 7))
sketch20.addConstraint(Sketcher.Constraint("Horizontal", 8))
sketch20.addConstraint(Sketcher.Constraint("Vertical", 9))
sketch20.addConstraint(Sketcher.Constraint("Horizontal", 10))
sketch20.addConstraint(Sketcher.Constraint("Vertical", 11))
sketch20.addConstraint(Sketcher.Constraint("Vertical", 12))
sketch20.addConstraint(Sketcher.Constraint("Horizontal", 13))
sketch20.addConstraint(Sketcher.Constraint("Vertical", 14))
sketch20.addConstraint(Sketcher.Constraint("Horizontal", 15))
sketch20.addConstraint(Sketcher.Constraint("PointOnObject", 0, 2, -2))
sketch20.addConstraint(Sketcher.Constraint("PointOnObject", 7, 2, -1))
sketch20.addConstraint(Sketcher.Constraint("Equal", 0, 4))
sketch20.addConstraint(Sketcher.Constraint("Equal", 4, 6))
sketch20.addConstraint(Sketcher.Constraint("Equal", 2, 8))
sketch20.addConstraint(Sketcher.Constraint("Equal", 3, 5))
sketch20.addConstraint(Sketcher.Constraint("Equal", 1, 7))
sketch20.addConstraint(Sketcher.Constraint("Equal", 5, 9))
sketch20.addConstraint(Sketcher.Constraint("DistanceX", 0, 1, 0, 2, 220.0))
sketch20.addConstraint(Sketcher.Constraint("DistanceX", 13, 2, 13, 1, 624.0))
sketch20.addConstraint(Sketcher.Constraint("DistanceY", 1, 2, 1, 1, 600.0))
sketch20.addConstraint(Sketcher.Constraint("DistanceY", 12, 2, 12, 1, 50.0))
sketch20.addConstraint(Sketcher.Constraint("DistanceY", -1, 1, 0, 2, 1500.0))
sketch20.addConstraint(Sketcher.Constraint("DistanceX", 6, 2, -1, 1, 660.0))
sketch20.addConstraint(Sketcher.Constraint("DistanceX", 12, 2, -1, 1, 18.0))
sketch20.addConstraint(Sketcher.Constraint("DistanceY", -1, 1, 12, 2, 832.0))
sketch20.setExpression("Constraints[40]", "Params.sketch20_width")
sketch20.setExpression("Constraints[41]", "Params.sketch20_width2")
sketch20.setExpression("Constraints[42]", "Params.sketch20_height")
sketch20.setExpression("Constraints[43]", "Params.sketch20_height2")
pad20 = body18.newObject("PartDesign::Pad", "Pad019")
pad20.Profile = sketch20
pad20.setExpression("Length", "Params.pad20_length")

doc.recompute()
